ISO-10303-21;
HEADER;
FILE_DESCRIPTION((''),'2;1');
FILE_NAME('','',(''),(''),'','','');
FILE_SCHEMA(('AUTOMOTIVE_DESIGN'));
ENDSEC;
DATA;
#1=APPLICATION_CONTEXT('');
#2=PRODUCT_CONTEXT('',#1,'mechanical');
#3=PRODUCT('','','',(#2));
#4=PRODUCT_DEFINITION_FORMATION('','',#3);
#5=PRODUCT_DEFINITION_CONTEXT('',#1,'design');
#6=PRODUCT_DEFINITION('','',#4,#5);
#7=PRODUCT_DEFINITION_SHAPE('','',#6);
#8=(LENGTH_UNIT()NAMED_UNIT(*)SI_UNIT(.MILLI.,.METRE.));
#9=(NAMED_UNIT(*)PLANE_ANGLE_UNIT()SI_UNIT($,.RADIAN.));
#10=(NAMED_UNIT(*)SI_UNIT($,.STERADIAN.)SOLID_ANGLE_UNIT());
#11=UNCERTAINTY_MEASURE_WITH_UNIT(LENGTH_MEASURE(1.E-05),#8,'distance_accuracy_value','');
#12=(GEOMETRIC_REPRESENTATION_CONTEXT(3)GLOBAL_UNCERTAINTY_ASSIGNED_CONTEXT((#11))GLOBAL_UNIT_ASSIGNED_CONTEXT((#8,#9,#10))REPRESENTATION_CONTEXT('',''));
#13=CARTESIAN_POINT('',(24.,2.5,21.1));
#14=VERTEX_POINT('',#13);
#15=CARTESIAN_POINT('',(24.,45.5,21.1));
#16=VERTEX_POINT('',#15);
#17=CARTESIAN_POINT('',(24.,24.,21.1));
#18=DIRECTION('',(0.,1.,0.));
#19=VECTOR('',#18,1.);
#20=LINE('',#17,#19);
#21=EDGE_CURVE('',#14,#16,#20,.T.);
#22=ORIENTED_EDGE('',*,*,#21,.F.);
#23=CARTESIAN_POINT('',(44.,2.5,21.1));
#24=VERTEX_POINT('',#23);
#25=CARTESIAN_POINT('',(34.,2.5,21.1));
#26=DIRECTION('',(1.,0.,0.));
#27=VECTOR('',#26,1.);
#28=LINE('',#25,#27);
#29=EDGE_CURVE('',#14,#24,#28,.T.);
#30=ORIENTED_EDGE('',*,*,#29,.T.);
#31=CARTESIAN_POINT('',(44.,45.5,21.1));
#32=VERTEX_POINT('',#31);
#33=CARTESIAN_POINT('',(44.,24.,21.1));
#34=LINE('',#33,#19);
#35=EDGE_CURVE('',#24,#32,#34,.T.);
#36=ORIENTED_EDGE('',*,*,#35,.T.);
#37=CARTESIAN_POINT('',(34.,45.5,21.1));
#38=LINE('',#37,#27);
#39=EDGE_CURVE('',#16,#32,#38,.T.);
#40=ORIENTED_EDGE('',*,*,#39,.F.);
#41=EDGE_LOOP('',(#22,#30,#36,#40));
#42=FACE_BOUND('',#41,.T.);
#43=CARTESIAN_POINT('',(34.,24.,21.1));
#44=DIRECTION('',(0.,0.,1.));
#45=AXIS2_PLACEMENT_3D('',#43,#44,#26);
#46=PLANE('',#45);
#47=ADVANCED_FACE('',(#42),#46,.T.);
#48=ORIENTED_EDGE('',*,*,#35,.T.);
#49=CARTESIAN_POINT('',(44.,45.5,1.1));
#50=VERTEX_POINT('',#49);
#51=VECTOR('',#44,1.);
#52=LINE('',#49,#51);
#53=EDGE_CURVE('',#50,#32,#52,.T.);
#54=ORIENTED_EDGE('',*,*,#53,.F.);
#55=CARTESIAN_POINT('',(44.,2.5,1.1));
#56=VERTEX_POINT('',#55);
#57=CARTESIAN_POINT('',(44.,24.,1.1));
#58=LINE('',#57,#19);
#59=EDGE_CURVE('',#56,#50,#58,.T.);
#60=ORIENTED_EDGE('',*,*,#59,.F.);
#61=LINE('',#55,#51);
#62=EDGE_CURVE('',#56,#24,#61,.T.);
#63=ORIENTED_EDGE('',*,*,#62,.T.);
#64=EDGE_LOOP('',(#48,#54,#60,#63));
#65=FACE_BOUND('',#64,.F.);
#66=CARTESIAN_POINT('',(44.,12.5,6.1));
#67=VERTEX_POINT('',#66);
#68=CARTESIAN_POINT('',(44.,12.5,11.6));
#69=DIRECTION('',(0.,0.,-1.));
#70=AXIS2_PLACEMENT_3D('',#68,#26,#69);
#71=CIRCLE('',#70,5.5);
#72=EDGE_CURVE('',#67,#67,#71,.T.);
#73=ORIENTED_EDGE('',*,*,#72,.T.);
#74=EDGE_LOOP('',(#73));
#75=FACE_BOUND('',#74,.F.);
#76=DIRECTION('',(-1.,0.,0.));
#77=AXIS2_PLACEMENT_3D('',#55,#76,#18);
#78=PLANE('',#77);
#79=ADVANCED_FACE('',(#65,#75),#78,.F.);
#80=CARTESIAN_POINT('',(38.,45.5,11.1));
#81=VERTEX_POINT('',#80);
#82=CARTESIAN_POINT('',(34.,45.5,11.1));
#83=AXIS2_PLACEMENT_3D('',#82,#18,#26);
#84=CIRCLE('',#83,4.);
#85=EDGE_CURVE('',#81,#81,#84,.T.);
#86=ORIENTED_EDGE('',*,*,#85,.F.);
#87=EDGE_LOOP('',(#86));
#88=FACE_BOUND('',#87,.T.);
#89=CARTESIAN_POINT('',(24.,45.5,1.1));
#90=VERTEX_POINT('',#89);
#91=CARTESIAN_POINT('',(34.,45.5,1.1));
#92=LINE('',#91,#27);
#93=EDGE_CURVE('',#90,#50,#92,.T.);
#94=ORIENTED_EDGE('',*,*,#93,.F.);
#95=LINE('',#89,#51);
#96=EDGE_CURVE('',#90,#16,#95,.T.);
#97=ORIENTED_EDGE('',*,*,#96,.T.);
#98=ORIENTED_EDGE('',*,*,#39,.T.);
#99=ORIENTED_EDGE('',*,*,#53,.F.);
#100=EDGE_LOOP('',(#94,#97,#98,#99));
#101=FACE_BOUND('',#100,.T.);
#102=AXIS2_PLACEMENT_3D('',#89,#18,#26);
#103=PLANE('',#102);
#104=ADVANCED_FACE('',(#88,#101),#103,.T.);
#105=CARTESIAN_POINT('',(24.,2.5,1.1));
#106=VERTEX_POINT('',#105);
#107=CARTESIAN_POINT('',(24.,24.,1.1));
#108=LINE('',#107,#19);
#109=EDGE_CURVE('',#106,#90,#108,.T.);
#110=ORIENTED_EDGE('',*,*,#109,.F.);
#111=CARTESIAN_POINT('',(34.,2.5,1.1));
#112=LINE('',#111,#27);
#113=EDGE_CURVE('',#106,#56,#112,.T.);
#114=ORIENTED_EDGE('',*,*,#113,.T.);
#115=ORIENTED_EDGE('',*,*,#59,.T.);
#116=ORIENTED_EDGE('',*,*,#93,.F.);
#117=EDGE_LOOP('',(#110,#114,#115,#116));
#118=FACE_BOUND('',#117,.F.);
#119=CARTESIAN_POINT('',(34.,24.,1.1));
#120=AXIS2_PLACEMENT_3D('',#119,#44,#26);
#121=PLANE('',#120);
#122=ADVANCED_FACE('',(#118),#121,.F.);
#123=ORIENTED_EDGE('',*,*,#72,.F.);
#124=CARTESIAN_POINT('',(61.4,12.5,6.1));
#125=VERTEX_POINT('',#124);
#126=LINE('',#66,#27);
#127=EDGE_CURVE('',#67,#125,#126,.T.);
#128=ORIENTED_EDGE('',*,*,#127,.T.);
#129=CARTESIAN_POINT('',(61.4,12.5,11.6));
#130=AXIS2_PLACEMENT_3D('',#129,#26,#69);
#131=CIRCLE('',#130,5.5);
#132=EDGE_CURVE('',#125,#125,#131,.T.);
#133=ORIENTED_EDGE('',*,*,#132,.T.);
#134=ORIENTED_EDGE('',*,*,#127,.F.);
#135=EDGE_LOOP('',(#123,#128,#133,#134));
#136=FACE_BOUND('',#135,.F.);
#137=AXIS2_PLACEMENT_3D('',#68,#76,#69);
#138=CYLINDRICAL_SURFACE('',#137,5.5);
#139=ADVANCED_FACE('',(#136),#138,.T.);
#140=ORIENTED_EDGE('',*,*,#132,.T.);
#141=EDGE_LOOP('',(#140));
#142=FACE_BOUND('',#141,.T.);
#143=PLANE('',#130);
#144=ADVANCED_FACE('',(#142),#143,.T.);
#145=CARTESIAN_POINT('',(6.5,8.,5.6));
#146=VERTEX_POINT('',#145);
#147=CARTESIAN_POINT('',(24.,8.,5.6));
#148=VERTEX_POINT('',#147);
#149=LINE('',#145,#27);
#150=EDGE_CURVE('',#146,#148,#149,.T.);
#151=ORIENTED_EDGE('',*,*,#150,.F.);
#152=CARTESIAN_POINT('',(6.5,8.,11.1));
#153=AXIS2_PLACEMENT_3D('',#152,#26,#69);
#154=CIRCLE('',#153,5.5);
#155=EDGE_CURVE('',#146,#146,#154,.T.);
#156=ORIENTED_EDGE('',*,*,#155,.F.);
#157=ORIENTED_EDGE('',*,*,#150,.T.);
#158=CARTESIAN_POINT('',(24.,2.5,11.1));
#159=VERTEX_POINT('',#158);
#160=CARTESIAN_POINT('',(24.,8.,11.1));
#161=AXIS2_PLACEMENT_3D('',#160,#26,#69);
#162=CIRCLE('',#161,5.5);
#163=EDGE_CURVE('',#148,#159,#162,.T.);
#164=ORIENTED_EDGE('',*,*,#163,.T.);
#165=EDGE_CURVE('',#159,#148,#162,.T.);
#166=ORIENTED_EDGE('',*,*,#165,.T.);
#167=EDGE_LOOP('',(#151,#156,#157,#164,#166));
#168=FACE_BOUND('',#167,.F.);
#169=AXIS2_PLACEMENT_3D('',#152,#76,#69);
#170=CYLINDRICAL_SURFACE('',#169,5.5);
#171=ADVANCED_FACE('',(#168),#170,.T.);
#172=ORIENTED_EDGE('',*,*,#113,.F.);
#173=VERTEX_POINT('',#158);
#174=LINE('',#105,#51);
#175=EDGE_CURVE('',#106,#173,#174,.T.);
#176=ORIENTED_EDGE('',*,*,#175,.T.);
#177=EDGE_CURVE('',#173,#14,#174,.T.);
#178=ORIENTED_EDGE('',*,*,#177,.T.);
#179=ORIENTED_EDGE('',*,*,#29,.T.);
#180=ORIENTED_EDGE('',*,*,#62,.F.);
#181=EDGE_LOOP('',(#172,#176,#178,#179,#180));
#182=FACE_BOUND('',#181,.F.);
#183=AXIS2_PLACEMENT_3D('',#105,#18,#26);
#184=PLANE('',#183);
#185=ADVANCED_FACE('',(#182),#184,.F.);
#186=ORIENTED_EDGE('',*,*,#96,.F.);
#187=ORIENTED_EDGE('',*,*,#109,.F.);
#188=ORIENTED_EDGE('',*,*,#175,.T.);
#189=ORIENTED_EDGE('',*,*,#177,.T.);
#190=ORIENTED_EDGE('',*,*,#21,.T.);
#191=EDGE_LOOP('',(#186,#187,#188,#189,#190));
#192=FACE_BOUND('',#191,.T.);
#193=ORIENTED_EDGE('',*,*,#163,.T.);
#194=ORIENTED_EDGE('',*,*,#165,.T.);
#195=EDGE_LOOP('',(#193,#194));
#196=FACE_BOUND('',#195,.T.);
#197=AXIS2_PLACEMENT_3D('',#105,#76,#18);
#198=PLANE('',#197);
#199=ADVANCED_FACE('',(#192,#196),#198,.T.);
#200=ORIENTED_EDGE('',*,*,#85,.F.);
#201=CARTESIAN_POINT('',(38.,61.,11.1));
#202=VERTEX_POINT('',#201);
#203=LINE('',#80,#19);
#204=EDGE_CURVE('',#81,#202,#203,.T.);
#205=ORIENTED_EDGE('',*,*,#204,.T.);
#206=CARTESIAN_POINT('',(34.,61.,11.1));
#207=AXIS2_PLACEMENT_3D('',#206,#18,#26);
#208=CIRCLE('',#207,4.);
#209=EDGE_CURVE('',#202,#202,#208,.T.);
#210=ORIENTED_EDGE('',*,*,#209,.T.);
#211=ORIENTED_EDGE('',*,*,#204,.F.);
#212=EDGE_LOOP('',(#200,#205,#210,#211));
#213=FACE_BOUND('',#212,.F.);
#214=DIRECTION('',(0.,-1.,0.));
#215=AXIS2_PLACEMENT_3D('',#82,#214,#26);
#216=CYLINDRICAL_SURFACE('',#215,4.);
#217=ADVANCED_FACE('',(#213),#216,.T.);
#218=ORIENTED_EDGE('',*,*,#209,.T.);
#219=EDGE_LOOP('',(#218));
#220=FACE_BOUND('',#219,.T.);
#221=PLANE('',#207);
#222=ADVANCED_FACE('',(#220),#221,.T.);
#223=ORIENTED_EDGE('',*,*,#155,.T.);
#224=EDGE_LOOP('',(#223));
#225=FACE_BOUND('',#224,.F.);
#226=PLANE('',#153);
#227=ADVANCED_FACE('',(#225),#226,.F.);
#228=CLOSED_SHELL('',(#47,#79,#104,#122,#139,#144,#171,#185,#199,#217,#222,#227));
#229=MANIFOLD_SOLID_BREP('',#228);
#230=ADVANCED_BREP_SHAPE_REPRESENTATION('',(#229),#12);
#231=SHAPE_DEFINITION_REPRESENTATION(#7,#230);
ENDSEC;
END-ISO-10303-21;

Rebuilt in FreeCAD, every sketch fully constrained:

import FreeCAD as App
import Part
import Sketcher
Q = App.Units.Quantity

doc = App.newDocument("Part")
params = doc.addObject("Spreadsheet::Sheet", "Params")
for row, (alias, value) in enumerate([
    ("sketch1_width", "20 mm"),
    ("sketch1_height", "43 mm"),
    ("pad1_length", "20 mm"),
    ("sketch2_diameter", "11 mm"),
    ("pad2_length", "17.4 mm"),
    ("sketch3_diameter", "8 mm"),
    ("pad3_length", "15.5 mm"),
    ("sketch4_diameter", "11 mm"),
    ("pad4_length", "17.5 mm"),
], start=1):
    params.set(f"A{row}", alias)
    params.set(f"B{row}", "=" + value)
    params.setAlias(f"B{row}", alias)

body = doc.addObject("PartDesign::Body", "Body")

sketch1 = doc.addObject("Sketcher::SketchObject", "Sketch")
body.addObject(sketch1)
sketch1.AttachmentSupport = (doc.XY_Plane, [""])
sketch1.MapMode = "FlatFace"
sketch1.addGeometry([
    Part.LineSegment(App.Vector(24, 43, 0), App.Vector(24, 0, 0)),
    Part.LineSegment(App.Vector(24, 0, 0), App.Vector(44, 0, 0)),
    Part.LineSegment(App.Vector(44, 0, 0), App.Vector(44, 43, 0)),
    Part.LineSegment(App.Vector(44, 43, 0), App.Vector(24, 43, 0)),
], False)
sketch1.addConstraint([
    Sketcher.Constraint("Coincident", 0, 2, 1, 1),
    Sketcher.Constraint("Coincident", 1, 2, 2, 1),
    Sketcher.Constraint("Coincident", 2, 2, 3, 1),
    Sketcher.Constraint("Coincident", 3, 2, 0, 1),
    Sketcher.Constraint("Vertical", 0),
    Sketcher.Constraint("Horizontal", 1),
    Sketcher.Constraint("Vertical", 2),
    Sketcher.Constraint("Horizontal", 3),
    Sketcher.Constraint("PointOnObject", 0, 2, -1),
    Sketcher.Constraint("DistanceX", 1, 1, 1, 2, Q("20 mm")),
    Sketcher.Constraint("DistanceY", 0, 2, 0, 1, Q("43 mm")),
    Sketcher.Constraint("DistanceX", -1, 1, 0, 2, Q("24 mm")),
])
sketch1.setExpression("Constraints[9]", "Params.sketch1_width")
sketch1.setExpression("Constraints[10]", "Params.sketch1_height")
pad1 = doc.addObject("PartDesign::Pad", "Pad")
body.addObject(pad1)
pad1.Profile = sketch1
pad1.setExpression("Length", "Params.pad1_length")
body2 = doc.addObject("PartDesign::Body", "Body001")

sketch2 = doc.addObject("Sketcher::SketchObject", "Sketch001")
body2.addObject(sketch2)
sketch2.AttachmentSupport = (doc.getObject("XY_Plane001"), [""])
sketch2.MapMode = "FlatFace"
sketch2.addGeometry(Part.Circle(App.Vector(0, 0, 0), App.Vector(0, 0, 1), 6), False)
sketch2.addConstraint([
    Sketcher.Constraint("Coincident", 0, 3, -1, 1),
    Sketcher.Constraint("Diameter", 0, Q("11 mm")),
])
sketch2.setExpression("Constraints[1]", "Params.sketch2_diameter")
pad2 = doc.addObject("PartDesign::Pad", "Pad001")
body2.addObject(pad2)
pad2.Profile = sketch2
pad2.setExpression("Length", "Params.pad2_length")
body3 = doc.addObject("PartDesign::Body", "Body002")
doc.recompute()

body2.Placement = App.Placement(App.Vector(0, 0, 0), App.Rotation(App.Vector(0, 1, 0), 90))
boolean = doc.addObject("PartDesign::Boolean", "Boolean")
body3.addObject(boolean)
boolean.Type = "Fuse"
boolean.addObjects([body2])
body4 = doc.addObject("PartDesign::Body", "Body003")
doc.recompute()

body3.Placement = App.Placement(App.Vector(44, 10, 10.5), App.Rotation(App.Vector(0, 0, 1), 0))
boolean2 = doc.addObject("PartDesign::Boolean", "Boolean001")
body4.addObject(boolean2)
boolean2.Type = "Fuse"
boolean2.addObjects([body3])
body5 = doc.addObject("PartDesign::Body", "Body004")

sketch3 = doc.addObject("Sketcher::SketchObject", "Sketch002")
body5.addObject(sketch3)
sketch3.AttachmentSupport = (doc.getObject("XY_Plane004"), [""])
sketch3.MapMode = "FlatFace"
sketch3.addGeometry(Part.Circle(App.Vector(0, 0, 0), App.Vector(0, 0, 1), 4), False)
sketch3.addConstraint([
    Sketcher.Constraint("Coincident", 0, 3, -1, 1),
    Sketcher.Constraint("Diameter", 0, Q("8 mm")),
])
sketch3.setExpression("Constraints[1]", "Params.sketch3_diameter")
pad3 = doc.addObject("PartDesign::Pad", "Pad002")
body5.addObject(pad3)
pad3.Profile = sketch3
pad3.setExpression("Length", "Params.pad3_length")
body6 = doc.addObject("PartDesign::Body", "Body005")
doc.recompute()

body5.Placement = App.Placement(App.Vector(0, 0, 0), App.Rotation(App.Vector(1, 0, 0), 270))
boolean3 = doc.addObject("PartDesign::Boolean", "Boolean002")
body6.addObject(boolean3)
boolean3.Type = "Fuse"
boolean3.addObjects([body5])
body7 = doc.addObject("PartDesign::Body", "Body006")
doc.recompute()

body6.Placement = App.Placement(App.Vector(34, 43, 10), App.Rotation(App.Vector(0, 0, 1), 0))
boolean4 = doc.addObject("PartDesign::Boolean", "Boolean003")
body7.addObject(boolean4)
boolean4.Type = "Fuse"
boolean4.addObjects([body6])
body8 = doc.addObject("PartDesign::Body", "Body007")

sketch4 = doc.addObject("Sketcher::SketchObject", "Sketch003")
body8.addObject(sketch4)
sketch4.AttachmentSupport = (doc.getObject("XY_Plane007"), [""])
sketch4.MapMode = "FlatFace"
sketch4.addGeometry(Part.Circle(App.Vector(0, 0, 0), App.Vector(0, 0, 1), 6), False)
sketch4.addConstraint([
    Sketcher.Constraint("Coincident", 0, 3, -1, 1),
    Sketcher.Constraint("Diameter", 0, Q("11 mm")),
])
sketch4.setExpression("Constraints[1]", "Params.sketch4_diameter")
pad4 = doc.addObject("PartDesign::Pad", "Pad003")
body8.addObject(pad4)
pad4.Profile = sketch4
pad4.setExpression("Length", "Params.pad4_length")
body9 = doc.addObject("PartDesign::Body", "Body008")
doc.recompute()

body8.Placement = App.Placement(App.Vector(0, 0, 0), App.Rotation(App.Vector(0, 1, 0), 90))
boolean5 = doc.addObject("PartDesign::Boolean", "Boolean004")
body9.addObject(boolean5)
boolean5.Type = "Fuse"
boolean5.addObjects([body8])
body10 = doc.addObject("PartDesign::Body", "Body009")
doc.recompute()

body9.Placement = App.Placement(App.Vector(6.5, 5.5, 10), App.Rotation(App.Vector(0, 0, 1), 0))
boolean6 = doc.addObject("PartDesign::Boolean", "Boolean005")
body10.addObject(boolean6)
boolean6.Type = "Fuse"
boolean6.addObjects([body9])
doc.recompute()

boolean7 = doc.addObject("PartDesign::Boolean", "Boolean006")
body10.addObject(boolean7)
boolean7.Type = "Fuse"
boolean7.addObjects([body])
doc.recompute()

boolean8 = doc.addObject("PartDesign::Boolean", "Boolean007")
body10.addObject(boolean8)
boolean8.Type = "Fuse"
boolean8.addObjects([body4])
doc.recompute()

boolean9 = doc.addObject("PartDesign::Boolean", "Boolean008")
body10.addObject(boolean9)
boolean9.Type = "Fuse"
boolean9.addObjects([body7])
body11 = doc.addObject("PartDesign::Body", "Body010")
doc.recompute()

body10.Placement = App.Placement(App.Vector(0, 2.5, 1.1), App.Rotation(App.Vector(0, 0, 1), 0))
boolean10 = doc.addObject("PartDesign::Boolean", "Boolean009")
body11.addObject(boolean10)
boolean10.Type = "Fuse"
boolean10.addObjects([body10])

doc.recompute()
